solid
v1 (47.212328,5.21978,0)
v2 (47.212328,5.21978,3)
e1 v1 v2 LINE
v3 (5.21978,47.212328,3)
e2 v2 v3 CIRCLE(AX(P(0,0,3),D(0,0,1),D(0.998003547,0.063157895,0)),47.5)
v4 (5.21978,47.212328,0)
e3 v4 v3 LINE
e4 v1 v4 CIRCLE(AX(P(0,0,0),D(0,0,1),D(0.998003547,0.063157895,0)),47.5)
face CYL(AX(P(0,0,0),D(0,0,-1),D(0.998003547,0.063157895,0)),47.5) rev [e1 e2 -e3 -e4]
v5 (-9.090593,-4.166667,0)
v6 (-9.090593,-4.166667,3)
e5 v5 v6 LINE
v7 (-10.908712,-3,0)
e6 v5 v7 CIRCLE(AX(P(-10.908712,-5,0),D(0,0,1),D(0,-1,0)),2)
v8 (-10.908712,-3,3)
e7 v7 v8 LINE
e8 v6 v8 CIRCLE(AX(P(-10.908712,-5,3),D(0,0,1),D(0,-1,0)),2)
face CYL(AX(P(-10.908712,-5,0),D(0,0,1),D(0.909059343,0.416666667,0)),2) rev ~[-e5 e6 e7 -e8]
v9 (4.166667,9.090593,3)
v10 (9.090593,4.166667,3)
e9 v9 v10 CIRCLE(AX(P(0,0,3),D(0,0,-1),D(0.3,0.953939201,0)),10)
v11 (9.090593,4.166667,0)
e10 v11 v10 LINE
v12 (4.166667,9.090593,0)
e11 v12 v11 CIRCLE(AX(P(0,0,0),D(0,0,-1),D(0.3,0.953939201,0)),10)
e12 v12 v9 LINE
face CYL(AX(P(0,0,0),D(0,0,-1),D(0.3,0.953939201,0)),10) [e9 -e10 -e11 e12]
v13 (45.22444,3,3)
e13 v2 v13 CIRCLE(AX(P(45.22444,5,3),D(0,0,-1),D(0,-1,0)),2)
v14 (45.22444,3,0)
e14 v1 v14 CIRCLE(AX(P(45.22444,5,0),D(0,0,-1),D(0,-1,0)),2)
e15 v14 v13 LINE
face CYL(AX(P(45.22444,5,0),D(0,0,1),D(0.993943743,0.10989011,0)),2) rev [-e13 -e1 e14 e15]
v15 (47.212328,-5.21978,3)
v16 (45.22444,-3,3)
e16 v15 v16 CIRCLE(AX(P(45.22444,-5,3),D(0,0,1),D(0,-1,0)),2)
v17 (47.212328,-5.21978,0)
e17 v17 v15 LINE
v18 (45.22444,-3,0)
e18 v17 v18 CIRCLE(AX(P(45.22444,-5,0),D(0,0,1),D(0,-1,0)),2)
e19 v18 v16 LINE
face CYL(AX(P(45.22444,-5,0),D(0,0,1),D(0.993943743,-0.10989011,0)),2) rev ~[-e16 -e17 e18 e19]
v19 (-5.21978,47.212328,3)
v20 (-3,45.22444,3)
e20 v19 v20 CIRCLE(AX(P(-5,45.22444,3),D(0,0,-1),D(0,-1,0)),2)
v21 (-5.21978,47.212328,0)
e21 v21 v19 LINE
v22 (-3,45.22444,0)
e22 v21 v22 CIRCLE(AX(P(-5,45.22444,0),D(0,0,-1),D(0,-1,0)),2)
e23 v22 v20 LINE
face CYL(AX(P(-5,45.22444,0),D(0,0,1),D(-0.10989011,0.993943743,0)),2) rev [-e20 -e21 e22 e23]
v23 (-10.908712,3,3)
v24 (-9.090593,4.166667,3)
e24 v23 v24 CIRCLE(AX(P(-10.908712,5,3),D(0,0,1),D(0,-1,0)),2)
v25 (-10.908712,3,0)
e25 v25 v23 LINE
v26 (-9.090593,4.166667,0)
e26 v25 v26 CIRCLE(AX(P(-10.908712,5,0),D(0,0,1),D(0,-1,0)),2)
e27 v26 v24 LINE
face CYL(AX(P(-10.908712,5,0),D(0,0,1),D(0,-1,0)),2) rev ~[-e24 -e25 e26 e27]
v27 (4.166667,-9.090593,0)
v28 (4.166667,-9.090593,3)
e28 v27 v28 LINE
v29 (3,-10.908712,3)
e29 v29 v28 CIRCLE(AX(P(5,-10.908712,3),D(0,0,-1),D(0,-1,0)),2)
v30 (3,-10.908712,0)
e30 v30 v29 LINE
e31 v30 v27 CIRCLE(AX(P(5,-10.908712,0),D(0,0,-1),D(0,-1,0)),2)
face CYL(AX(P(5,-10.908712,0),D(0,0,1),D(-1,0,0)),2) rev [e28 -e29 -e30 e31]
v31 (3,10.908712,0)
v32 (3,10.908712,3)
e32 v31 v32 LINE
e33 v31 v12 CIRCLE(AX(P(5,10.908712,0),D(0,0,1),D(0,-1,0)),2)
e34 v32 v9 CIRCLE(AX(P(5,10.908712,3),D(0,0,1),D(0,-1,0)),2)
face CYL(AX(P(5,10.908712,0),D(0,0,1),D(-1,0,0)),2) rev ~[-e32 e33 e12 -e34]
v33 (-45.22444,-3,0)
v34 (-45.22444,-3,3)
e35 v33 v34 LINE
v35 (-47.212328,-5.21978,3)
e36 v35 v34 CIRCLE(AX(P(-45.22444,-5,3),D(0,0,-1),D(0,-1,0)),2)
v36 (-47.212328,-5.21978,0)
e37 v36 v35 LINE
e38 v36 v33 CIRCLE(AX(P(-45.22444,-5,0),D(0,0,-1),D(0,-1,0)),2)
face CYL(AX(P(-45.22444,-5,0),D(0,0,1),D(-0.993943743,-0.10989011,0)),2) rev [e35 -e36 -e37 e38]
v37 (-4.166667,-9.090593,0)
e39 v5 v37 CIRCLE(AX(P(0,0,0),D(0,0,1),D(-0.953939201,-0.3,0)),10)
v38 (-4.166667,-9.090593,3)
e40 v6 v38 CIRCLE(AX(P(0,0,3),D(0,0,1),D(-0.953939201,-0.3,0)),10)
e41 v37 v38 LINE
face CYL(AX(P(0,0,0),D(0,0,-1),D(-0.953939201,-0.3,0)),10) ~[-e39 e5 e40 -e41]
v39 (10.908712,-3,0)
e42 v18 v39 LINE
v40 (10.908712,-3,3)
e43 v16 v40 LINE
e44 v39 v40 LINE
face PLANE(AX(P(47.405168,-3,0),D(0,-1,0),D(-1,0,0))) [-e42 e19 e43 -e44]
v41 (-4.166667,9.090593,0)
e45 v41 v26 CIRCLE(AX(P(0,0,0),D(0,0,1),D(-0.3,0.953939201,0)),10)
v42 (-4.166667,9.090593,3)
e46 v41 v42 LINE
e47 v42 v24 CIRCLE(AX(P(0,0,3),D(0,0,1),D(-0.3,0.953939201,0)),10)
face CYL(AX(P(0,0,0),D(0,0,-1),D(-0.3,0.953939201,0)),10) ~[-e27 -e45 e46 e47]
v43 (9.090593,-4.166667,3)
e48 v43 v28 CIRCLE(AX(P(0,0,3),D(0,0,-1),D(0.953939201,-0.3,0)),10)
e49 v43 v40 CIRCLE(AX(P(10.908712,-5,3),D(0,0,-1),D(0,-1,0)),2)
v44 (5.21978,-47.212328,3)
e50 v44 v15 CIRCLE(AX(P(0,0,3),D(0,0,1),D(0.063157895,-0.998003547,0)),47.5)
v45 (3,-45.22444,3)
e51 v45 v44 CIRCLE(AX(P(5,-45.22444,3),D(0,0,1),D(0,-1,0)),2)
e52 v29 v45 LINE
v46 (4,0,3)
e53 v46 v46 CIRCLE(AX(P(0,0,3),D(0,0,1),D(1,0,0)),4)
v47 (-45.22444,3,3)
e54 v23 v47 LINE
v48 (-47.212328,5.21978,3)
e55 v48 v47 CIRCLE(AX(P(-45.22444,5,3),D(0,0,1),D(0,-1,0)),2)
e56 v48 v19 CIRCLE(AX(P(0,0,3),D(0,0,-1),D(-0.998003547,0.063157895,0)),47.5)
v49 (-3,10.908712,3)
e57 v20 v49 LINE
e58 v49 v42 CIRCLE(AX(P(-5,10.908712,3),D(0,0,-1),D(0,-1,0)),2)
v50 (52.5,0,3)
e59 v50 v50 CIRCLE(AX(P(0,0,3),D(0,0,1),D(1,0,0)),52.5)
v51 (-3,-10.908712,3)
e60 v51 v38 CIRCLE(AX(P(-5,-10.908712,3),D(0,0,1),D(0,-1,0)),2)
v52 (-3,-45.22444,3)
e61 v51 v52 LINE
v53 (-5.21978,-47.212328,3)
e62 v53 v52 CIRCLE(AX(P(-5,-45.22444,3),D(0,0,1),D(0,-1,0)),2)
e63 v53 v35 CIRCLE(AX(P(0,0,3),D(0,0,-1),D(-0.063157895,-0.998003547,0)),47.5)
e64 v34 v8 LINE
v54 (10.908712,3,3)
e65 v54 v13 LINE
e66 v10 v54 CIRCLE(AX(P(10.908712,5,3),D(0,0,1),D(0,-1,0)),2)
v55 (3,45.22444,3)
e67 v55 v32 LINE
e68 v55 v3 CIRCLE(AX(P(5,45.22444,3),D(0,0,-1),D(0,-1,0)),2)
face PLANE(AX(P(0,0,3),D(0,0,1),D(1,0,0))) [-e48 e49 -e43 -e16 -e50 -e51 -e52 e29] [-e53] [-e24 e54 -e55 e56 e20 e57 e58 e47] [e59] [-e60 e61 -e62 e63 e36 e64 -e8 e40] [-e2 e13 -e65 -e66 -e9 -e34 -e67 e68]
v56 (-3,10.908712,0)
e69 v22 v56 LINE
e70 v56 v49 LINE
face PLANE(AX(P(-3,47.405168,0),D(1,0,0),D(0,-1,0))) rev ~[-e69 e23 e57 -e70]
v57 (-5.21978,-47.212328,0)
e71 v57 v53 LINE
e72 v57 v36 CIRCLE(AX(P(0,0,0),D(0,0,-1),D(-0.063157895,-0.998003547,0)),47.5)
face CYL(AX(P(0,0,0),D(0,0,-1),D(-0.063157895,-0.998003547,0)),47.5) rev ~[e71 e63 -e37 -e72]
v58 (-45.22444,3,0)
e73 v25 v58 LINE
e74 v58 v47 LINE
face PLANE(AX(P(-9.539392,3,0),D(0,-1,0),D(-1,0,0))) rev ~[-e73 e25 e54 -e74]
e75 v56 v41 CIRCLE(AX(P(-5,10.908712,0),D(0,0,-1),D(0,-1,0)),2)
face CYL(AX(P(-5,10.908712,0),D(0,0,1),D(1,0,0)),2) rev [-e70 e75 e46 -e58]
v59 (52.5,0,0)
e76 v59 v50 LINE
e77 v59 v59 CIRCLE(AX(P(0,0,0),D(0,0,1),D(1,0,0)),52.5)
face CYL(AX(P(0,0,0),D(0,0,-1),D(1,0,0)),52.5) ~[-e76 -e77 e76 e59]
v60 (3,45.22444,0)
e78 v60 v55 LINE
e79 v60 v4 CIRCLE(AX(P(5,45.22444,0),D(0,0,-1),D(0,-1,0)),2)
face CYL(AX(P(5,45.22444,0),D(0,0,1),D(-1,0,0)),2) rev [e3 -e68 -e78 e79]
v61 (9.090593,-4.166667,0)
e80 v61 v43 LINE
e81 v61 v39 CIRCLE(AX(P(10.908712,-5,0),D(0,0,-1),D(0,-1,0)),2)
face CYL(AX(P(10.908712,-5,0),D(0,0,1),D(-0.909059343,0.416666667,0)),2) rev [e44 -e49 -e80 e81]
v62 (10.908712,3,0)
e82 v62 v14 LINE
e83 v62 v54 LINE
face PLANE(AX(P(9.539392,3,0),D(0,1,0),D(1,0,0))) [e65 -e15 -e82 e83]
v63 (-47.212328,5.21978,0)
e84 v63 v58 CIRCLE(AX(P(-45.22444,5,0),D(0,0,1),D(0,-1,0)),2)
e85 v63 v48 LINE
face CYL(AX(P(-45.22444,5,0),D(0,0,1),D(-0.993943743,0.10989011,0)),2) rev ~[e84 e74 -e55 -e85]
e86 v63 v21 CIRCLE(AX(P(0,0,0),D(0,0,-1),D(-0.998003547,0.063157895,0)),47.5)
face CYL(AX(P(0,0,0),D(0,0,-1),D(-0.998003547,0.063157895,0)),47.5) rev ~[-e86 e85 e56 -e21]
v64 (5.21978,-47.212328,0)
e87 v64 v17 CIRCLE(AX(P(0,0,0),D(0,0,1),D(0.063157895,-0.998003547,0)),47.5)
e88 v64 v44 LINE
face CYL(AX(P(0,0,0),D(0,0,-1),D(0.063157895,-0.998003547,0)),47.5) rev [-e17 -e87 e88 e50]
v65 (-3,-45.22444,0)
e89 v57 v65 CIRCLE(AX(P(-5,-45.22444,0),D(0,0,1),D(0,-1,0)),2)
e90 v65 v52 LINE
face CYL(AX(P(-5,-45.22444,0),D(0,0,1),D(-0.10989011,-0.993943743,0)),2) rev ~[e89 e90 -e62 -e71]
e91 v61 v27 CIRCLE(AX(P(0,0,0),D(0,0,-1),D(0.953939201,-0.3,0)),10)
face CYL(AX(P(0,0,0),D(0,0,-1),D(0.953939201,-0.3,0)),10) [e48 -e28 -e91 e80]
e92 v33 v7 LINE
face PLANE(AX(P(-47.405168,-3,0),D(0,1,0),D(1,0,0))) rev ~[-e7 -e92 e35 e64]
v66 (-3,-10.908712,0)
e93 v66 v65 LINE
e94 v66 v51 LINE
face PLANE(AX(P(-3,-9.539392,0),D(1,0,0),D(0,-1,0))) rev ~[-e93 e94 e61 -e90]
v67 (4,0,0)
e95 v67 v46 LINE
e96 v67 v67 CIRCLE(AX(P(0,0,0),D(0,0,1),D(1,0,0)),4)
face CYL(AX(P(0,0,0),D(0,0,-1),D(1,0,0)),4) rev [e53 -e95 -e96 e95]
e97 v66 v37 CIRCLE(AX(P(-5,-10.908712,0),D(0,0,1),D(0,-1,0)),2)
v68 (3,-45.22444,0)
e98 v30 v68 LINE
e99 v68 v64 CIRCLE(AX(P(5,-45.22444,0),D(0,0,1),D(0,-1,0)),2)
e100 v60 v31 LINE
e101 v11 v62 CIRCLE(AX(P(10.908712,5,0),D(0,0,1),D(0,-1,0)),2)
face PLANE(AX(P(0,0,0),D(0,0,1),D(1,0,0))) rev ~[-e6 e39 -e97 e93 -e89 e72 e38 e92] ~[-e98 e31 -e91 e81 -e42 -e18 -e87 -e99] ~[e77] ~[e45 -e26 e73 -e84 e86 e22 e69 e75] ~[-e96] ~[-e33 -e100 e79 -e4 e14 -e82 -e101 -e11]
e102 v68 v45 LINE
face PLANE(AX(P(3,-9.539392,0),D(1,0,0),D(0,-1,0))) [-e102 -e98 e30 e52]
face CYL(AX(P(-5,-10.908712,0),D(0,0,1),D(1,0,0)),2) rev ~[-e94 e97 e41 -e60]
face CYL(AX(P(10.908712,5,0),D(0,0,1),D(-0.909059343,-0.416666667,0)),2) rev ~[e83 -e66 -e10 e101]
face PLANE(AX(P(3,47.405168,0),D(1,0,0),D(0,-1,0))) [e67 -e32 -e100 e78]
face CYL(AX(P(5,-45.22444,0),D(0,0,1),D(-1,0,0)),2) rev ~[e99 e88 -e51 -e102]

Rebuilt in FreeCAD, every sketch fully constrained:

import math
import FreeCAD as App
import Part
import Sketcher

V = App.Vector


def edges_at(feature, points):
    """Names of the edges that pass closest to the given points."""
    edges = feature.Shape.Edges
    near = lambda p: min(range(len(edges)), key=lambda i: edges[i].distToShape(Part.Vertex(*p))[0])
    return sorted({f"Edge{near(p) + 1}" for p in points})

doc = App.newDocument("Part")
body = doc.addObject("PartDesign::Body", "Body")

# Sketch on XY plane
sketch1 = doc.addObject("Sketcher::SketchObject", "Sketch")
body.addObject(sketch1)
sketch1.AttachmentSupport = (doc.XY_Plane, [""])
sketch1.MapMode = "FlatFace"
sketch1.addGeometry([
    Part.Circle(V(0, 0, 0), V(0, 0, 1), 52.5),  # 0
    Part.ArcOfCircle(Part.Circle(V(0, 0, 0), V(0, 0, 1), 47.5), math.radians(-176), math.radians(-94)),  # 1
    Part.LineSegment(V(-47.4, -3, 0), V(-9.5, -3, 0)),  # 2
    Part.ArcOfCircle(Part.Circle(V(0, 0, 0), V(0, 0, 1), 10), math.radians(-163), math.radians(-107)),  # 3
    Part.LineSegment(V(-3, -9.5, 0), V(-3, -47.4, 0)),  # 4
    Part.LineSegment(V(3, -47.4, 0), V(3, -9.5, 0)),  # 5
    Part.ArcOfCircle(Part.Circle(V(0, 0, 0), V(0, 0, 1), 10), math.radians(-73), math.radians(-17)),  # 6
    Part.LineSegment(V(9.5, -3, 0), V(47.4, -3, 0)),  # 7
    Part.ArcOfCircle(Part.Circle(V(0, 0, 0), V(0, 0, 1), 47.5), math.radians(-86), math.radians(-4)),  # 8
    Part.Circle(V(0, 0, 0), V(0, 0, 1), 4),  # 9
    Part.ArcOfCircle(Part.Circle(V(0, 0, 0), V(0, 0, 1), 47.5), math.radians(94), math.radians(176)),  # 10
    Part.LineSegment(V(-3, 47.4, 0), V(-3, 9.5, 0)),  # 11
    Part.ArcOfCircle(Part.Circle(V(0, 0, 0), V(0, 0, 1), 10), math.radians(107), math.radians(163)),  # 12
    Part.LineSegment(V(-9.5, 3, 0), V(-47.4, 3, 0)),  # 13
    Part.LineSegment(V(3, 9.5, 0), V(3, 47.4, 0)),  # 14
    Part.ArcOfCircle(Part.Circle(V(0, 0, 0), V(0, 0, 1), 47.5), math.radians(4), math.radians(86)),  # 15
    Part.LineSegment(V(47.4, 3, 0), V(9.5, 3, 0)),  # 16
    Part.ArcOfCircle(Part.Circle(V(0, 0, 0), V(0, 0, 1), 10), math.radians(17), math.radians(73)),  # 17
], False)
sketch1.addConstraint([
    Sketcher.Constraint("Coincident", 1, 1, 2, 1),
    Sketcher.Constraint("Coincident", 2, 2, 3, 1),
    Sketcher.Constraint("Coincident", 3, 2, 4, 1),
    Sketcher.Constraint("Coincident", 4, 2, 1, 2),
    Sketcher.Constraint("Coincident", 5, 2, 6, 1),
    Sketcher.Constraint("Coincident", 6, 2, 7, 1),
    Sketcher.Constraint("Coincident", 7, 2, 8, 2),
    Sketcher.Constraint("Coincident", 8, 1, 5, 1),
    Sketcher.Constraint("Coincident", 10, 1, 11, 1),
    Sketcher.Constraint("Coincident", 11, 2, 12, 1),
    Sketcher.Constraint("Coincident", 12, 2, 13, 1),
    Sketcher.Constraint("Coincident", 13, 2, 10, 2),
    Sketcher.Constraint("Coincident", 14, 2, 15, 2),
    Sketcher.Constraint("Coincident", 15, 1, 16, 1),
    Sketcher.Constraint("Coincident", 16, 2, 17, 1),
    Sketcher.Constraint("Coincident", 17, 2, 14, 1),
    Sketcher.Constraint("Horizontal", 2),
    Sketcher.Constraint("Vertical", 4),
    Sketcher.Constraint("Vertical", 5),
    Sketcher.Constraint("Horizontal", 7),
    Sketcher.Constraint("Vertical", 11),
    Sketcher.Constraint("Horizontal", 13),
    Sketcher.Constraint("Vertical", 14),
    Sketcher.Constraint("Horizontal", 16),
    Sketcher.Constraint("Coincident", 0, 3, -1, 1),
    Sketcher.Constraint("Coincident", 1, 3, -1, 1),
    Sketcher.Constraint("Coincident", 3, 3, -1, 1),
    Sketcher.Constraint("Coincident", 6, 3, -1, 1),
    Sketcher.Constraint("Coincident", 8, 3, -1, 1),
    Sketcher.Constraint("Coincident", 9, 3, -1, 1),
    Sketcher.Constraint("Coincident", 10, 3, -1, 1),
    Sketcher.Constraint("Coincident", 12, 3, -1, 1),
    Sketcher.Constraint("Coincident", 15, 3, -1, 1),
    Sketcher.Constraint("Coincident", 17, 3, -1, 1),
    Sketcher.Constraint("Equal", 3, 6),
    Sketcher.Constraint("Equal", 1, 8),
    Sketcher.Constraint("Equal", 8, 10),
    Sketcher.Constraint("Equal", 6, 12),
    Sketcher.Constraint("Equal", 10, 15),
    Sketcher.Constraint("Equal", 12, 17),
    Sketcher.Constraint("Horizontal", 3, 2, 5, 2),
    Sketcher.Constraint("Horizontal", 2, 2, 6, 2),
    Sketcher.Constraint("Horizontal", 10, 1, 14, 2),
    Sketcher.Constraint("Horizontal", 13, 2, 15, 1),
    Sketcher.Constraint("Vertical", 4, 2, 10, 1),
    Sketcher.Constraint("Vertical", 2, 2, 12, 2),
    Sketcher.Constraint("Equal", 16, 4),
    Sketcher.Constraint("Diameter", 0, 105.0),
    Sketcher.Constraint("Diameter", 9, 8.0),
    Sketcher.Constraint("Radius", 3, 10.0),
    Sketcher.Constraint("Radius", 1, 47.5),
    Sketcher.Constraint("DistanceY", 1, 1, -1, 1, 3.0),
])
pad1 = doc.addObject("PartDesign::Pad", "Pad")
body.addObject(pad1)
pad1.Profile = sketch1
pad1.Length = 3
doc.recompute()

fillet = doc.addObject("PartDesign::Fillet", "Fillet")
body.addObject(fillet)
fillet.Base = (pad1, edges_at(pad1, [
    (-3, 47.405, 1.5),
    (-47.405, 3, 1.5),
    (-9.539, 3, 1.5),
    (-3, 9.539, 1.5),
    (3, -47.405, 1.5),
    (47.405, -3, 1.5),
    (9.539, -3, 1.5),
    (3, -9.539, 1.5),
    (-47.405, -3, 1.5),
    (-3, -47.405, 1.5),
    (-3, -9.539, 1.5),
    (-9.539, -3, 1.5),
    (3, 9.539, 1.5),
    (9.539, 3, 1.5),
    (47.405, 3, 1.5),
    (3, 47.405, 1.5),
]))
fillet.Radius = 2

doc.recompute()
